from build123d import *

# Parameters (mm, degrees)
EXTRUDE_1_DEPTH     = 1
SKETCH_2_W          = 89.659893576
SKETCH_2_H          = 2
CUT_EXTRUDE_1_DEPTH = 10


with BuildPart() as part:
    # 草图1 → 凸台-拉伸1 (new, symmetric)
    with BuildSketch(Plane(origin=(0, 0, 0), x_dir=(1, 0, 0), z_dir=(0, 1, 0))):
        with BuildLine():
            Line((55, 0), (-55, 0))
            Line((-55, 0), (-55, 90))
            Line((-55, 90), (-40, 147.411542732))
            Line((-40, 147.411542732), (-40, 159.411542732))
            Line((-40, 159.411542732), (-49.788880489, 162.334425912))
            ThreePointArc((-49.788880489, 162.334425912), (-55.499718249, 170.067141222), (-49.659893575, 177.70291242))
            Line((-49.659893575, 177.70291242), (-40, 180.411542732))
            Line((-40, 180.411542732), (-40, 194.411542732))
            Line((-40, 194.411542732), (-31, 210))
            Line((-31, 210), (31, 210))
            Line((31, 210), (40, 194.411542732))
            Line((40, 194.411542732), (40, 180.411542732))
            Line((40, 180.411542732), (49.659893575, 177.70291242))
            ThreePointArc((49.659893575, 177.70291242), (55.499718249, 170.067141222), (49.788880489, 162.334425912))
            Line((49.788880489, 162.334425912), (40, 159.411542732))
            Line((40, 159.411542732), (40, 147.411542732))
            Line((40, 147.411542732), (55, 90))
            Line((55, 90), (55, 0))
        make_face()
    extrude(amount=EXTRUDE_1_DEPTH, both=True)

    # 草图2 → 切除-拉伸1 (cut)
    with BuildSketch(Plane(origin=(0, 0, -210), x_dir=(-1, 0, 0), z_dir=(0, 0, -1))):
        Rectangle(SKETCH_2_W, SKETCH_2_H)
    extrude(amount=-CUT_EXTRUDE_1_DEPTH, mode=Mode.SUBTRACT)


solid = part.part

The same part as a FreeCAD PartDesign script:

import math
import FreeCAD as App
import Part
import Sketcher

V = App.Vector
Q = App.Units.Quantity

doc = App.newDocument("Part")
body = doc.addObject("PartDesign::Body", "Body")

sketch1 = doc.addObject("Sketcher::SketchObject", "Sketch")
body.addObject(sketch1)
sketch1.AttachmentSupport = (doc.XZ_Plane, [""])
sketch1.MapMode = "FlatFace"
sketch1.addGeometry([
    Part.LineSegment(V(-55, 0, 0), V(55, 0, 0)),
    Part.LineSegment(V(55, 0, 0), V(55, -90, 0)),
    Part.LineSegment(V(55, -90, 0), V(40, -147, 0)),
    Part.LineSegment(V(40, -147, 0), V(40, -159, 0)),
    Part.LineSegment(V(40, -159, 0), V(50, -162, 0)),
    Part.ArcOfCircle(Part.Circle(V(48, -170, 0), V(0, 0, 1), 8), math.radians(-74), math.radians(73)),
    Part.LineSegment(V(50, -178, 0), V(40, -180, 0)),
    Part.LineSegment(V(40, -180, 0), V(40, -194, 0)),
    Part.LineSegment(V(40, -194, 0), V(31, -210, 0)),
    Part.LineSegment(V(31, -210, 0), V(-31, -210, 0)),
    Part.LineSegment(V(-31, -210, 0), V(-40, -194, 0)),
    Part.LineSegment(V(-40, -194, 0), V(-40, -180, 0)),
    Part.LineSegment(V(-40, -180, 0), V(-50, -178, 0)),
    Part.ArcOfCircle(Part.Circle(V(-48, -170, 0), V(0, 0, 1), 8), math.radians(107), math.radians(254)),
    Part.LineSegment(V(-50, -162, 0), V(-40, -159, 0)),
    Part.LineSegment(V(-40, -159, 0), V(-40, -147, 0)),
    Part.LineSegment(V(-40, -147, 0), V(-55, -90, 0)),
    Part.LineSegment(V(-55, -90, 0), V(-55, 0, 0)),
], False)
sketch1.addConstraint([
    Sketcher.Constraint("Coincident", 0, 2, 1, 1),
    Sketcher.Constraint("Coincident", 1, 2, 2, 1),
    Sketcher.Constraint("Coincident", 2, 2, 3, 1),
    Sketcher.Constraint("Coincident", 3, 2, 4, 1),
    Sketcher.Constraint("Tangent", 4, 2, 5, 2),
    Sketcher.Constraint("Tangent", 5, 1, 6, 1),
    Sketcher.Constraint("Coincident", 6, 2, 7, 1),
    Sketcher.Constraint("Coincident", 7, 2, 8, 1),
    Sketcher.Constraint("Coincident", 8, 2, 9, 1),
    Sketcher.Constraint("Coincident", 9, 2, 10, 1),
    Sketcher.Constraint("Coincident", 10, 2, 11, 1),
    Sketcher.Constraint("Coincident", 11, 2, 12, 1),
    Sketcher.Constraint("Tangent", 12, 2, 13, 2),
    Sketcher.Constraint("Tangent", 13, 1, 14, 1),
    Sketcher.Constraint("Coincident", 14, 2, 15, 1),
    Sketcher.Constraint("Coincident", 15, 2, 16, 1),
    Sketcher.Constraint("Coincident", 16, 2, 17, 1),
    Sketcher.Constraint("Coincident", 17, 2, 0, 1),
    Sketcher.Constraint("Horizontal", 0),
    Sketcher.Constraint("Vertical", 1),
    Sketcher.Constraint("Vertical", 3),
    Sketcher.Constraint("Vertical", 7),
    Sketcher.Constraint("Horizontal", 9),
    Sketcher.Constraint("Vertical", 11),
    Sketcher.Constraint("Vertical", 15),
    Sketcher.Constraint("Vertical", 17),
    Sketcher.Constraint("Equal", 5, 13),
    Sketcher.Constraint("Symmetric", 0, 2, 17, 2, -1, 1),
    Sketcher.Constraint("Symmetric", 5, 3, 13, 3, -2),
    Sketcher.Constraint("Symmetric", 7, 2, 10, 2, -2),
    Sketcher.Constraint("Symmetric", 3, 2, 14, 2, -2),
    Sketcher.Constraint("Horizontal", 6, 2, 11, 2),
    Sketcher.Constraint("Horizontal", 2, 2, 15, 2),
    Sketcher.Constraint("Horizontal", 1, 2, 16, 2),
    Sketcher.Constraint("Vertical", 3, 2, 6, 2),
    Sketcher.Constraint("Equal", 8, 10),
    Sketcher.Constraint("Radius", 5, 8.0),
    Sketcher.Constraint("DistanceX", 0, 1, 0, 2, 110.0),
    Sketcher.Constraint("DistanceX", 9, 2, 9, 1, 62.0),
    Sketcher.Constraint("DistanceY", 1, 2, 1, 1, 90.0),
    Sketcher.Constraint("DistanceY", 3, 2, 3, 1, 12.0),
    Sketcher.Constraint("DistanceY", 7, 2, 7, 1, 14.0),
    Sketcher.Constraint("Angle", 8, Q("-120 deg")),
    Sketcher.Constraint("Distance", 8, 18.0),
    Sketcher.Constraint("DistanceY", 5, 3, -1, 1, 170.0),
    Sketcher.Constraint("DistanceY", 8, 2, -1, 1, 210.0),
    Sketcher.Constraint("DistanceX", 13, 3, 5, 3, 95.0),
    Sketcher.Constraint("DistanceY", 6, 2, 3, 2, 21.0),
])
pad1 = doc.addObject("PartDesign::Pad", "Pad")
body.addObject(pad1)
pad1.Profile = sketch1
pad1.Length = 2
pad1.Midplane = True

sketch2 = doc.addObject("Sketcher::SketchObject", "Sketch001")
body.addObject(sketch2)
sketch2.AttachmentSupport = (doc.XY_Plane, [""])
sketch2.MapMode = "FlatFace"
sketch2.AttachmentOffset = App.Placement(V(0, 0, -210), App.Rotation())
sketch2.addGeometry([
    Part.LineSegment(V(44.8, 1, 0), V(44.8, -1, 0)),
    Part.LineSegment(V(44.8, -1, 0), V(-44.8, -1, 0)),
    Part.LineSegment(V(-44.8, -1, 0), V(-44.8, 1, 0)),
    Part.LineSegment(V(-44.8, 1, 0), V(44.8, 1, 0)),
], False)
sketch2.addConstraint([
    Sketcher.Constraint("Coincident", 0, 2, 1, 1),
    Sketcher.Constraint("Coincident", 1, 2, 2, 1),
    Sketcher.Constraint("Coincident", 2, 2, 3, 1),
    Sketcher.Constraint("Coincident", 3, 2, 0, 1),
    Sketcher.Constraint("Vertical", 0),
    Sketcher.Constraint("Horizontal", 1),
    Sketcher.Constraint("Vertical", 2),
    Sketcher.Constraint("Horizontal", 3),
    Sketcher.Constraint("Symmetric", 0, 2, 2, 2, -1, 1),
    Sketcher.Constraint("DistanceY", 0, 2, 0, 1, 2.0),
    Sketcher.Constraint("DistanceX", 1, 2, 1, 1, 89.659894),
])
pocket1 = doc.addObject("PartDesign::Pocket", "Pocket")
body.addObject(pocket1)
pocket1.Profile = sketch2
pocket1.Length = 10
pocket1.Reversed = True

doc.recompute()
